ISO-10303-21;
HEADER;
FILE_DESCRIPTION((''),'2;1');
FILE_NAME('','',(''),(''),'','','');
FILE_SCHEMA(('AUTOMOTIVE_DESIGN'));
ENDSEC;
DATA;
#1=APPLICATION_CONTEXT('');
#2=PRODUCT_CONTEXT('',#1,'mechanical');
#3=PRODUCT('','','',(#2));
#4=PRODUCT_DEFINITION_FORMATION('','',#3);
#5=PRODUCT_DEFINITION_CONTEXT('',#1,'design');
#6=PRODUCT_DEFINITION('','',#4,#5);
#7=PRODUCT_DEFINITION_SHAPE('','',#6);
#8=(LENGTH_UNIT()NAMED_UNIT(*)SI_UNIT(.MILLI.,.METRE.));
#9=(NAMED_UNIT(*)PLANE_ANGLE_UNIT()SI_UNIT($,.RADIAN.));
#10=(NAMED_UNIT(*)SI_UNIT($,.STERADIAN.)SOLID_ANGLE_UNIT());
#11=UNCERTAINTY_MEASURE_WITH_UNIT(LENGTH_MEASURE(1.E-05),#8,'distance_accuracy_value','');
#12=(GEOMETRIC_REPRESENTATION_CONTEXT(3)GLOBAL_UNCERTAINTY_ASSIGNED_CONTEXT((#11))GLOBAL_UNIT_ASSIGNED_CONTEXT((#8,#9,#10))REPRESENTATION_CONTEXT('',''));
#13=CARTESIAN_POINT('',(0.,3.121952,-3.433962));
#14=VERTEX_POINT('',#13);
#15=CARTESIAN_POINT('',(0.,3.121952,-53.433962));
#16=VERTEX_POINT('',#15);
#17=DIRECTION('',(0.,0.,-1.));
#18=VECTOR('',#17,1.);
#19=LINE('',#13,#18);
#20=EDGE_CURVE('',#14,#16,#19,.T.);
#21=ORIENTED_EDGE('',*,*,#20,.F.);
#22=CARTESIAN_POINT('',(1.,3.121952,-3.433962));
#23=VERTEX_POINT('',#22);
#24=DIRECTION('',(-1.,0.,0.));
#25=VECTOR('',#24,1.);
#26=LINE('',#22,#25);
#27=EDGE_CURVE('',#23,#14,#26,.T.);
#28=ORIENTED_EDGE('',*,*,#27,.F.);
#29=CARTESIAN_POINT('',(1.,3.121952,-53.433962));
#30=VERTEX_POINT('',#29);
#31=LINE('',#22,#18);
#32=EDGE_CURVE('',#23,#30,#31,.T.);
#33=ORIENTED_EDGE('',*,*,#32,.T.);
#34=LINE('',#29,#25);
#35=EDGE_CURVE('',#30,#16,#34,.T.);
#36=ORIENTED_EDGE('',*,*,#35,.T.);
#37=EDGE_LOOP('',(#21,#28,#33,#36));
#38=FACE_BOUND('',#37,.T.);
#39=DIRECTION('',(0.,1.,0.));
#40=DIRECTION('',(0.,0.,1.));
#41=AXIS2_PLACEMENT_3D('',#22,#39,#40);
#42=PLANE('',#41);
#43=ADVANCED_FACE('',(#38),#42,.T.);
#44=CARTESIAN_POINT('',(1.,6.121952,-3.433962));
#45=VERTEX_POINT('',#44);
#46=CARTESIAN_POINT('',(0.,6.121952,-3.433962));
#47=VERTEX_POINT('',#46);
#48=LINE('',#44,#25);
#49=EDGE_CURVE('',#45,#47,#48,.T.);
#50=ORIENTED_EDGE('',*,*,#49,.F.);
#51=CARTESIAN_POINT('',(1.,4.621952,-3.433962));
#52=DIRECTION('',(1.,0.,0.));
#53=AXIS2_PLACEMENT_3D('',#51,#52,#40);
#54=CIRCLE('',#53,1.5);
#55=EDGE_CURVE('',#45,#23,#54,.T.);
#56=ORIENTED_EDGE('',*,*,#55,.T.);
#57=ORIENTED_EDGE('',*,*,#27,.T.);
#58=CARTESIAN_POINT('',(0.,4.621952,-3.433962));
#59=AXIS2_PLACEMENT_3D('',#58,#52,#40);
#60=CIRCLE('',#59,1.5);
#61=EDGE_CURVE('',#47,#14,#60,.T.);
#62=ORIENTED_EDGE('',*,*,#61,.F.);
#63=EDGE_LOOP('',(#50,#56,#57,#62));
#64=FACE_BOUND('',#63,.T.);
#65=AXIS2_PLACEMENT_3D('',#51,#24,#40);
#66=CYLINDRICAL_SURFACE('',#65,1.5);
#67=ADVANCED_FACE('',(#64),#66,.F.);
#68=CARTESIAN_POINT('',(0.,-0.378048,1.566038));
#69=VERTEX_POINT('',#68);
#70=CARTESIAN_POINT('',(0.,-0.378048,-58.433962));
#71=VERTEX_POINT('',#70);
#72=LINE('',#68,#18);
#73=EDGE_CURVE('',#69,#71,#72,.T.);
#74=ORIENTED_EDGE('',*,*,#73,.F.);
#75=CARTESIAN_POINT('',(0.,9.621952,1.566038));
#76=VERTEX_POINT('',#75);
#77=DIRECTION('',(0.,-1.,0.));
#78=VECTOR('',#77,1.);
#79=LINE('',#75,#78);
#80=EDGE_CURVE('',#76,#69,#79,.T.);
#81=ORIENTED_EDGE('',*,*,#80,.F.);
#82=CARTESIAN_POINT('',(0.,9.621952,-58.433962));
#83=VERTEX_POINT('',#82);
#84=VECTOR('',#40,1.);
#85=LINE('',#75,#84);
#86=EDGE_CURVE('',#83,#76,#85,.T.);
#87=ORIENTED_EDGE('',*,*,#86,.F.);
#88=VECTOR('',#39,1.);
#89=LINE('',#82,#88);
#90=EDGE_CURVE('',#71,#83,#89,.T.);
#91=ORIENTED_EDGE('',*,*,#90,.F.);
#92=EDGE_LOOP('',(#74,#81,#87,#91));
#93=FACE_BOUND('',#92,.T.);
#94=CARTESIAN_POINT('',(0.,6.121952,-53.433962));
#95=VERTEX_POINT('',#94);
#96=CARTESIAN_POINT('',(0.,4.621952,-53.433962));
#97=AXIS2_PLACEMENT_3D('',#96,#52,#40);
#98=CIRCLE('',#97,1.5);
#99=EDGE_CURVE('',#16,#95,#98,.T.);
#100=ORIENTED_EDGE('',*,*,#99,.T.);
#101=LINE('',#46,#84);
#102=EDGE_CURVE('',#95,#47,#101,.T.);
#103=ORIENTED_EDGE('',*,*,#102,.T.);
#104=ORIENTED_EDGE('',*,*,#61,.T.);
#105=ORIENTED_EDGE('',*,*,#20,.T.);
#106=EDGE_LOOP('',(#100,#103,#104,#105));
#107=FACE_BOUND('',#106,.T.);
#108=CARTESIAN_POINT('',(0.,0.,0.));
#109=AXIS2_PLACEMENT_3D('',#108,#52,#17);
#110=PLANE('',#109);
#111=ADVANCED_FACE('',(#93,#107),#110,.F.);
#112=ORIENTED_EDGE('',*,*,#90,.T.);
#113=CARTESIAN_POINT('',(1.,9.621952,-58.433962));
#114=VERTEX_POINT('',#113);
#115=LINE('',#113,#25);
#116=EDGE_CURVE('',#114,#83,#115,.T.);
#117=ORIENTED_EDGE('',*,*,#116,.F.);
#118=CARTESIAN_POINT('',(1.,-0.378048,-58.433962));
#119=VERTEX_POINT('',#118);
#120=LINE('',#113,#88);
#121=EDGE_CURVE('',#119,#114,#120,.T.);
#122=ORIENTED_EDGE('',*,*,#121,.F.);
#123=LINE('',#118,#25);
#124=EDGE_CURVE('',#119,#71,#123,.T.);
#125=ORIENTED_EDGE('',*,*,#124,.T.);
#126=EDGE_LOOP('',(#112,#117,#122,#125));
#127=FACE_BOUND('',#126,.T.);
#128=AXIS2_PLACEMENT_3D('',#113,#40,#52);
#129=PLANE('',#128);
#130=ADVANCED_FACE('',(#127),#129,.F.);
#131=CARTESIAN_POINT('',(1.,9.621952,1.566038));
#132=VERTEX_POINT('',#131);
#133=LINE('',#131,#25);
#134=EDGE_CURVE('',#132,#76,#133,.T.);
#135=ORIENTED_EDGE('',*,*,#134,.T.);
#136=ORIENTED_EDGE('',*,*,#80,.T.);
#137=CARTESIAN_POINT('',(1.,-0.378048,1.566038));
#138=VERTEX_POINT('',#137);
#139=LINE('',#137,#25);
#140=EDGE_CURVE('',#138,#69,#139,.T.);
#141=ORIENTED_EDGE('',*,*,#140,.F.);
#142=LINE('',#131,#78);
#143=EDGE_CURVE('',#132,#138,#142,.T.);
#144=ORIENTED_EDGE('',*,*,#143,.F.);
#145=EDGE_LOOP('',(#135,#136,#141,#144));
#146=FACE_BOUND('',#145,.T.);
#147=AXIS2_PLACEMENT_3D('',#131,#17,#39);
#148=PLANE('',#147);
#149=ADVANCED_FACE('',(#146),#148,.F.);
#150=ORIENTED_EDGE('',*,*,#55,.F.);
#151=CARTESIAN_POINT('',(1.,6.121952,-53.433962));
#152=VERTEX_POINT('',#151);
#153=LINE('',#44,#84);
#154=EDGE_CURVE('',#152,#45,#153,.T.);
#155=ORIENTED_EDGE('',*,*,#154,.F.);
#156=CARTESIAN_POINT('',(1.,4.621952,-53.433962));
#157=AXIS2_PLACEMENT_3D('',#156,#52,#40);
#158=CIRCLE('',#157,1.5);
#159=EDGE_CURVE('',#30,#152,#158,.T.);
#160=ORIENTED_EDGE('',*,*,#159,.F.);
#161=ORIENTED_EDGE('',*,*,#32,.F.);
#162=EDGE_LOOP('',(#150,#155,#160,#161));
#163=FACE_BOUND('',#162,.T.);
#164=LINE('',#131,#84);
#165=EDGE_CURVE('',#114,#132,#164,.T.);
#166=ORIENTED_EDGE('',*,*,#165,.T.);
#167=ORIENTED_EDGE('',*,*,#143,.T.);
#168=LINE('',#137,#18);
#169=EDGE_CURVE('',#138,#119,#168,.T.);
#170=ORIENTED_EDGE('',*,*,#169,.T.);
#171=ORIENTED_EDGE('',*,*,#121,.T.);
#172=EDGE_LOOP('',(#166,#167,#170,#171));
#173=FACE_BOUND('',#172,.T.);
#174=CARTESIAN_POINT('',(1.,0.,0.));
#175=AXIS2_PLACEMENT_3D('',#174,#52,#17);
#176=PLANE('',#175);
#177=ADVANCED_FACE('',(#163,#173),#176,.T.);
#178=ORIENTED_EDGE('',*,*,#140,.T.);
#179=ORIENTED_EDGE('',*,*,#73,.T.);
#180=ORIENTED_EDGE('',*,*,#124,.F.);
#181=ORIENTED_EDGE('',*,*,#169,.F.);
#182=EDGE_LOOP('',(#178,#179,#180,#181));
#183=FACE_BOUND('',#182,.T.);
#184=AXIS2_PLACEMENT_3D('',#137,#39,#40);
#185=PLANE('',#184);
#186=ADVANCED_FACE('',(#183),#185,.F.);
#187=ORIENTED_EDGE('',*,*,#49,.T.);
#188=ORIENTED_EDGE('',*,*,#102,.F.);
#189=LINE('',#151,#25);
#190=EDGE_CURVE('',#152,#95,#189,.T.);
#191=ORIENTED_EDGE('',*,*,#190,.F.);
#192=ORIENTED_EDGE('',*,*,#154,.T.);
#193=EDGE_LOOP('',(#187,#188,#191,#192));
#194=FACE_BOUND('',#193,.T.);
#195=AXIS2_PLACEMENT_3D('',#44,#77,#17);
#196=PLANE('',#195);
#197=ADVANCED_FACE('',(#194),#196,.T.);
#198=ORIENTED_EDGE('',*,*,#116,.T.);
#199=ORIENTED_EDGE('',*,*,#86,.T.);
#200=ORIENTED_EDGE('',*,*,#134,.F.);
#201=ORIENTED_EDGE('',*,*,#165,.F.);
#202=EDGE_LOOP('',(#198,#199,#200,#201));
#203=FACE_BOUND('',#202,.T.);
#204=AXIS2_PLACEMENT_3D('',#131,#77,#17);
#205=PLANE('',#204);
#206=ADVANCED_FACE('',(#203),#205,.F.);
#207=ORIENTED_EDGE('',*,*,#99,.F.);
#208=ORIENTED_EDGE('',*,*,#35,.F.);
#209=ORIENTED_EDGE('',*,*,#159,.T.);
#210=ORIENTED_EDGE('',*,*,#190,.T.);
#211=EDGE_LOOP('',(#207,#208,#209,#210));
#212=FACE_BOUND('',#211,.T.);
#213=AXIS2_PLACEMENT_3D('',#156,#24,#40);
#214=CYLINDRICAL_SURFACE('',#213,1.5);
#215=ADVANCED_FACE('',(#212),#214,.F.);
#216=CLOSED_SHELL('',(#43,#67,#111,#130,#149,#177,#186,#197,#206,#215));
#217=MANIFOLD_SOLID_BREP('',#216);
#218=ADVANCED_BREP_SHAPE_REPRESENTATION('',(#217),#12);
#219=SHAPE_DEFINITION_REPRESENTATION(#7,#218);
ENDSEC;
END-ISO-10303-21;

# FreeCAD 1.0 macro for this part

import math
import FreeCAD as App
import Part
import Sketcher
Q = App.Units.Quantity


def add_polygon(sketch, points):
    """Adds a closed chain of lines whose ends are joined by coincident constraints."""
    first, n = sketch.GeometryCount, len(points)
    for a, b in zip(points, points[1:] + points[:1]):
        sketch.addGeometry(Part.LineSegment(App.Vector(*a, 0), App.Vector(*b, 0)), False)
    for i in range(n):
        sketch.addConstraint(Sketcher.Constraint("Coincident", first + i, 2, first + (i + 1) % n, 1))

doc = App.newDocument("Part")
body = doc.addObject("PartDesign::Body", "Body")

# Sketch on YZ plane
sketch1 = doc.addObject("Sketcher::SketchObject", "Sketch")
body.addObject(sketch1)
sketch1.AttachmentSupport = (doc.YZ_Plane, [""])
sketch1.MapMode = "FlatFace"
add_polygon(sketch1, [(9.6, 1.6), (-0.4, 1.6), (-0.4, -58.4), (9.6, -58.4)])  # lines 0-3
sketch1.addGeometry(Part.ArcOfCircle(Part.Circle(App.Vector(4.6, -3.4, 0), App.Vector(0, 0, 1), 1.5), math.radians(0), math.radians(180)), False)  # 4
sketch1.addGeometry(Part.LineSegment(App.Vector(6.1, -3.4, 0), App.Vector(6.1, -53.4, 0)), False)  # 5
sketch1.addGeometry(Part.ArcOfCircle(Part.Circle(App.Vector(4.6, -53.4, 0), App.Vector(0, 0, 1), 1.5), math.radians(180), math.radians(360)), False)  # 6
sketch1.addGeometry(Part.LineSegment(App.Vector(3.1, -53.4, 0), App.Vector(3.1, -3.4, 0)), False)  # 7
sketch1.addConstraint([
    Sketcher.Constraint("Tangent", 4, 1, 5, 1),
    Sketcher.Constraint("Tangent", 5, 2, 6, 2),
    Sketcher.Constraint("Tangent", 6, 1, 7, 1),
    Sketcher.Constraint("Tangent", 7, 2, 4, 2),
    Sketcher.Constraint("Horizontal", 0),
    Sketcher.Constraint("Vertical", 1),
    Sketcher.Constraint("Horizontal", 2),
    Sketcher.Constraint("Vertical", 3),
    Sketcher.Constraint("Vertical", 5),
    Sketcher.Constraint("Vertical", 7),
    Sketcher.Constraint("Radius", 4, Q("1.5 mm")),
    Sketcher.Constraint("DistanceX", 0, 2, 0, 1, Q("10 mm")),
    Sketcher.Constraint("DistanceY", 1, 2, 1, 1, Q("60 mm")),
    Sketcher.Constraint("DistanceY", 5, 2, 5, 1, Q("50 mm")),
    Sketcher.Constraint("DistanceX", 0, 2, 4, 3, Q("5 mm")),
    Sketcher.Constraint("DistanceY", 4, 3, 0, 2, Q("5 mm")),
    Sketcher.Constraint("DistanceX", -1, 1, 4, 3, Q("4.621952 mm")),
    Sketcher.Constraint("DistanceY", 4, 3, -1, 1, Q("3.433962 mm")),
])
pad1 = doc.addObject("PartDesign::Pad", "Pad")
body.addObject(pad1)
pad1.Profile = sketch1
pad1.Length = 1

doc.recompute()
